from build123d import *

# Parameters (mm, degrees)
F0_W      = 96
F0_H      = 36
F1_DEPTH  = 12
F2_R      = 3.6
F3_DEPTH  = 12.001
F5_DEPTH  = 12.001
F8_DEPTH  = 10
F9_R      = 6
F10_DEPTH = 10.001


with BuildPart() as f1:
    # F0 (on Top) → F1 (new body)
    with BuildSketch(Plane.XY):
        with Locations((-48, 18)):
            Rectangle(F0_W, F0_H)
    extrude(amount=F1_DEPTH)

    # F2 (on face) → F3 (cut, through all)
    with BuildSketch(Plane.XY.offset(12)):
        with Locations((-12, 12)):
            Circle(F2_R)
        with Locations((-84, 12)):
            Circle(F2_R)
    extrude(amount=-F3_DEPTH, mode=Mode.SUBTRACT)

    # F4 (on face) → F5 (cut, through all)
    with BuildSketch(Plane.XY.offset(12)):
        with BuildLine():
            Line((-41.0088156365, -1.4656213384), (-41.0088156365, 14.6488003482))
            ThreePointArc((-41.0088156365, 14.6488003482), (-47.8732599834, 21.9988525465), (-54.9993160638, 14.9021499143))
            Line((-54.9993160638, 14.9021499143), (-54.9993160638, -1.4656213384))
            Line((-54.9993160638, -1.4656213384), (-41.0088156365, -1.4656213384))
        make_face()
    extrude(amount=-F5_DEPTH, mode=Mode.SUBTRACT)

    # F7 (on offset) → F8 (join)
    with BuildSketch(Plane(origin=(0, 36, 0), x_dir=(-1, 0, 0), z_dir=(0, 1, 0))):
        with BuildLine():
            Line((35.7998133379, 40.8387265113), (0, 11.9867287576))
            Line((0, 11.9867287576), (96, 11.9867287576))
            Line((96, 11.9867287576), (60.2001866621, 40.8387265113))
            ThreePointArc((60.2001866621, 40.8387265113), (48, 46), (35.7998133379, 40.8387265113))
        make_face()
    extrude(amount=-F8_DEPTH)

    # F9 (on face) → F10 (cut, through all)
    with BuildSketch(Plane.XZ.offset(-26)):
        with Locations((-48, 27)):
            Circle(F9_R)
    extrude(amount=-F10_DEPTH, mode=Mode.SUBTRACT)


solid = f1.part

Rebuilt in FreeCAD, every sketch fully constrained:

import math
import FreeCAD as App
import Part
import Sketcher

V = App.Vector
Q = App.Units.Quantity

doc = App.newDocument("Part")
body = doc.addObject("PartDesign::Body", "Body")

# Sketch on XY plane
sketch1 = body.newObject("Sketcher::SketchObject", "Sketch")
sketch1.AttachmentSupport = (doc.getObject("XY_Plane"), [""])
sketch1.MapMode = "FlatFace"
sketch1.addGeometry([
    Part.LineSegment(V(-96, 36, 0), V(-96, 0, 0)),
    Part.LineSegment(V(-96, 0, 0), V(0, 0, 0)),
    Part.LineSegment(V(0, 0, 0), V(0, 36, 0)),
    Part.LineSegment(V(0, 36, 0), V(-96, 36, 0)),
], False)
sketch1.addConstraint([
    Sketcher.Constraint("Coincident", 0, 2, 1, 1),
    Sketcher.Constraint("Coincident", 1, 2, 2, 1),
    Sketcher.Constraint("Coincident", 2, 2, 3, 1),
    Sketcher.Constraint("Coincident", 3, 2, 0, 1),
    Sketcher.Constraint("Vertical", 0),
    Sketcher.Constraint("Horizontal", 1),
    Sketcher.Constraint("Vertical", 2),
    Sketcher.Constraint("Horizontal", 3),
    Sketcher.Constraint("Coincident", 1, 2, -1, 1),
    Sketcher.Constraint("DistanceX", 1, 1, 1, 2, Q("96 mm")),
    Sketcher.Constraint("DistanceY", 0, 2, 0, 1, Q("36 mm")),
])
pad1 = body.newObject("PartDesign::Pad", "Pad")
pad1.Profile = sketch1
pad1.Length = 12

# Sketch on XY plane
sketch2 = body.newObject("Sketcher::SketchObject", "Sketch001")
sketch2.AttachmentSupport = (doc.getObject("XY_Plane"), [""])
sketch2.MapMode = "FlatFace"
sketch2.AttachmentOffset = App.Placement(V(0, 0, 12), App.Rotation())
sketch2.addGeometry([
    Part.Circle(V(-12, 12, 0), V(0, 0, 1), 3.6),
    Part.Circle(V(-84, 12, 0), V(0, 0, 1), 3.6),
], False)
sketch2.addConstraint([
    Sketcher.Constraint("Equal", 0, 1),
    Sketcher.Constraint("Horizontal", 0, 3, 1, 3),
    Sketcher.Constraint("Diameter", 0, Q("7.2 mm")),
    Sketcher.Constraint("DistanceX", 0, 3, -1, 1, Q("12 mm")),
    Sketcher.Constraint("DistanceY", -1, 1, 0, 3, Q("12 mm")),
    Sketcher.Constraint("DistanceX", 1, 3, -1, 1, Q("84 mm")),
])
pocket1 = body.newObject("PartDesign::Pocket", "Pocket")
pocket1.Profile = sketch2
pocket1.Type = "ThroughAll"

# Sketch on XY plane
sketch3 = body.newObject("Sketcher::SketchObject", "Sketch002")
sketch3.AttachmentSupport = (doc.getObject("XY_Plane"), [""])
sketch3.MapMode = "FlatFace"
sketch3.AttachmentOffset = App.Placement(V(0, 0, 12), App.Rotation())
sketch3.addGeometry([
    Part.LineSegment(V(-41.008816, -1.465621, 0), V(-41.008816, 14.6488, 0)),
    Part.ArcOfCircle(Part.Circle(V(-48, 15, 0), V(0, 0, 1), 7), math.radians(-2.875816), math.radians(180.80094)),
    Part.LineSegment(V(-54.999316, 14.90215, 0), V(-54.999316, -1.465621, 0)),
    Part.LineSegment(V(-54.999316, -1.465621, 0), V(-41.008816, -1.465621, 0)),
], False)
sketch3.addConstraint([
    Sketcher.Constraint("Coincident", 0, 2, 1, 1),
    Sketcher.Constraint("Coincident", 1, 2, 2, 1),
    Sketcher.Constraint("Coincident", 2, 2, 3, 1),
    Sketcher.Constraint("Coincident", 3, 2, 0, 1),
    Sketcher.Constraint("Vertical", 0),
    Sketcher.Constraint("Vertical", 2),
    Sketcher.Constraint("Horizontal", 3),
    Sketcher.Constraint("Radius", 1, Q("7 mm")),
    Sketcher.Constraint("DistanceX", 1, 3, -1, 1, Q("48 mm")),
    Sketcher.Constraint("DistanceY", -1, 1, 1, 3, Q("15 mm")),
    Sketcher.Constraint("DistanceX", 3, 1, 3, 2, Q("13.9905 mm")),
    Sketcher.Constraint("DistanceY", 0, 1, 0, 2, Q("16.114422 mm")),
    Sketcher.Constraint("DistanceY", 2, 2, 2, 1, Q("16.367771 mm")),
])
pocket2 = body.newObject("PartDesign::Pocket", "Pocket001")
pocket2.Profile = sketch3
pocket2.Type = "ThroughAll"

# Sketch on XZ plane
sketch4 = body.newObject("Sketcher::SketchObject", "Sketch003")
sketch4.AttachmentSupport = (doc.getObject("XZ_Plane"), [""])
sketch4.MapMode = "FlatFace"
sketch4.AttachmentOffset = App.Placement(V(0, 0, -36), App.Rotation())
sketch4.addGeometry([
    Part.LineSegment(V(-35.799813, 40.838727, 0), V(0, 11.986729, 0)),
    Part.LineSegment(V(0, 11.986729, 0), V(-96, 11.986729, 0)),
    Part.LineSegment(V(-96, 11.986729, 0), V(-60.200187, 40.838727, 0)),
    Part.ArcOfCircle(Part.Circle(V(-48, 29, 0), V(0, 0, 1), 17), math.radians(44.138539), math.radians(135.861461)),
], False)
sketch4.addConstraint([
    Sketcher.Constraint("Coincident", 0, 2, 1, 1),
    Sketcher.Constraint("Coincident", 1, 2, 2, 1),
    Sketcher.Constraint("Coincident", 2, 2, 3, 2),
    Sketcher.Constraint("Coincident", 3, 1, 0, 1),
    Sketcher.Constraint("Horizontal", 1),
    Sketcher.Constraint("PointOnObject", 0, 2, -2),
    Sketcher.Constraint("Horizontal", 2, 2, 3, 1),
    Sketcher.Constraint("Equal", 0, 2),
    Sketcher.Constraint("Radius", 3, Q("17 mm")),
    Sketcher.Constraint("DistanceX", 1, 2, 1, 1, Q("96 mm")),
    Sketcher.Constraint("DistanceY", -1, 1, 3, 3, Q("29 mm")),
    Sketcher.Constraint("DistanceY", -1, 1, 0, 2, Q("11.986729 mm")),
    Sketcher.Constraint("Distance", 0, Q("45.978956 mm")),
])
pad2 = body.newObject("PartDesign::Pad", "Pad001")
pad2.Profile = sketch4
pad2.Length = 10

# Sketch on XZ plane
sketch5 = body.newObject("Sketcher::SketchObject", "Sketch004")
sketch5.AttachmentSupport = (doc.getObject("XZ_Plane"), [""])
sketch5.MapMode = "FlatFace"
sketch5.AttachmentOffset = App.Placement(V(0, 0, -26), App.Rotation())
sketch5.addGeometry(Part.Circle(V(-48, 27, 0), V(0, 0, 1), 6), False)
sketch5.addConstraint([
    Sketcher.Constraint("Diameter", 0, Q("12 mm")),
    Sketcher.Constraint("DistanceX", 0, 3, -1, 1, Q("48 mm")),
    Sketcher.Constraint("DistanceY", -1, 1, 0, 3, Q("27 mm")),
])
pocket3 = body.newObject("PartDesign::Pocket", "Pocket002")
pocket3.Profile = sketch5
pocket3.Type = "ThroughAll"

doc.recompute()
